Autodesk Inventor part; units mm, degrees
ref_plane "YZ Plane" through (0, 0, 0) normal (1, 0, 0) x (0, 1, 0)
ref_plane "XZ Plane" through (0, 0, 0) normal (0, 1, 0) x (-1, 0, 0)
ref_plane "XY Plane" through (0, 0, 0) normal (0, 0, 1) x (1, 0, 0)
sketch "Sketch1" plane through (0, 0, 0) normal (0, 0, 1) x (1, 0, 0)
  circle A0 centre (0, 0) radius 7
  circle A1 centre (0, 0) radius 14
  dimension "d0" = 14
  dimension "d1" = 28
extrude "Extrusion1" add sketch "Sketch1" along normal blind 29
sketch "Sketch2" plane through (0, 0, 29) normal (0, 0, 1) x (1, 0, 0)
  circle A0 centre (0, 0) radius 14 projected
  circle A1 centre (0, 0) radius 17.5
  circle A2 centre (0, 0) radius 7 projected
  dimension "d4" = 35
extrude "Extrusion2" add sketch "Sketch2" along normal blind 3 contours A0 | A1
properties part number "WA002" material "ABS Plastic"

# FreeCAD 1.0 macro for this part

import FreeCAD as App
import Part
import Sketcher

V = App.Vector
Q = App.Units.Quantity

doc = App.newDocument("Part")
body = doc.addObject("PartDesign::Body", "Body")

sketch1 = body.newObject("Sketcher::SketchObject", "Sketch")
sketch1.AttachmentSupport = (doc.getObject("XY_Plane"), [""])
sketch1.MapMode = "FlatFace"
sketch1.addGeometry([
    Part.Circle(V(0, 0, 0), V(0, 0, 1), 14),
    Part.Circle(V(0, 0, 0), V(0, 0, 1), 7),
], False)
sketch1.addConstraint([
    Sketcher.Constraint("Coincident", 0, 3, -1, 1),
    Sketcher.Constraint("Coincident", 1, 3, -1, 1),
    Sketcher.Constraint("Diameter", 0, Q("28 mm")),
    Sketcher.Constraint("Diameter", 1, Q("14 mm")),
])
pad1 = body.newObject("PartDesign::Pad", "Pad")
pad1.Profile = sketch1
pad1.Length = 29

sketch2 = body.newObject("Sketcher::SketchObject", "Sketch001")
sketch2.AttachmentSupport = (doc.getObject("XY_Plane"), [""])
sketch2.MapMode = "FlatFace"
sketch2.AttachmentOffset = App.Placement(V(0, 0, 29), App.Rotation())
sketch2.addGeometry([
    Part.Circle(V(0, 0, 0), V(0, 0, 1), 18),
    Part.Circle(V(0, 0, 0), V(0, 0, 1), 7),
], False)
sketch2.addConstraint([
    Sketcher.Constraint("Coincident", 0, 3, -1, 1),
    Sketcher.Constraint("Coincident", 1, 3, -1, 1),
    Sketcher.Constraint("Diameter", 0, Q("35 mm")),
    Sketcher.Constraint("Diameter", 1, Q("14 mm")),
])
pad2 = body.newObject("PartDesign::Pad", "Pad001")
pad2.Profile = sketch2
pad2.Length = 3

doc.recompute()
